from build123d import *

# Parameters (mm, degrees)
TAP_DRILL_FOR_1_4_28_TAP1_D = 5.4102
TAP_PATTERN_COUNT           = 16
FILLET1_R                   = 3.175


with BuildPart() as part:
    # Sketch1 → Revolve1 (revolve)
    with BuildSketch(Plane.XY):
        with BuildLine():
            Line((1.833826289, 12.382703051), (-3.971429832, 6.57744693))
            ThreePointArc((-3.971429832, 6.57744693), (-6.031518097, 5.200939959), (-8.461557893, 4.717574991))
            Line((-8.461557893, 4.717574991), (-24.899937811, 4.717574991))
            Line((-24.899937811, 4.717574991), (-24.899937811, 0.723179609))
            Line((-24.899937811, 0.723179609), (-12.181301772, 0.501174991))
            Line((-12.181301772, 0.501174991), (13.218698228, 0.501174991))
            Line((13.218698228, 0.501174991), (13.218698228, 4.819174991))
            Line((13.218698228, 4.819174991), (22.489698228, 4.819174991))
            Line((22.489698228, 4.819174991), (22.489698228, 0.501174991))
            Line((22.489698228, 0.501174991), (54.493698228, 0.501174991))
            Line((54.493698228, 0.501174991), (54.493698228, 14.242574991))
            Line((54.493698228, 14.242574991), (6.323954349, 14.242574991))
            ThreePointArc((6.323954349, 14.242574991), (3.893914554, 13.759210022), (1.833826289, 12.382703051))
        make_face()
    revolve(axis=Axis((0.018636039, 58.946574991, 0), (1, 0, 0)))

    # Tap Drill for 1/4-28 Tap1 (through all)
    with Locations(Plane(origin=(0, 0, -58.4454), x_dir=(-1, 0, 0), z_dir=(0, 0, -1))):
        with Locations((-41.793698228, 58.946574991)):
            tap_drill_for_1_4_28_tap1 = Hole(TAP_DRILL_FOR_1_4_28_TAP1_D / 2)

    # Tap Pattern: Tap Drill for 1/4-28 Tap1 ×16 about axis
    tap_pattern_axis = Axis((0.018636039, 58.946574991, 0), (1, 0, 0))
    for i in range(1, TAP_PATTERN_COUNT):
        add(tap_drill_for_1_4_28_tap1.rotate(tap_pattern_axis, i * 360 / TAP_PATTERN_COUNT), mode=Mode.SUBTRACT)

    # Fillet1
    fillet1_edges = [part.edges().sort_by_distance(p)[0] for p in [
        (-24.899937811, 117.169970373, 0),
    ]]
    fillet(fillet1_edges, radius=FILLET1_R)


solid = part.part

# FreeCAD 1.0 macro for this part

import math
import FreeCAD as App
import Part
import Sketcher

V = App.Vector
Q = App.Units.Quantity


def edges_at(feature, points):
    """Names of the edges that pass closest to the given points."""
    edges = feature.Shape.Edges
    near = lambda p: min(range(len(edges)), key=lambda i: edges[i].distToShape(Part.Vertex(*p))[0])
    return sorted({f"Edge{near(p) + 1}" for p in points})

doc = App.newDocument("Part")
body = doc.addObject("PartDesign::Body", "Body")

# Sketch on XY plane
sketch1 = doc.addObject("Sketcher::SketchObject", "Sketch")
body.addObject(sketch1)
sketch1.AttachmentSupport = (doc.XY_Plane, [""])
sketch1.MapMode = "FlatFace"
sketch1.addGeometry([
    Part.LineSegment(V(1.8, 12.4, 0), V(-4, 6.6, 0)),  # 0
    Part.ArcOfCircle(Part.Circle(V(-8.5, 11.1, 0), V(0, 0, 1), 6.3), math.radians(-90), math.radians(-45)),  # 1
    Part.LineSegment(V(-8.5, 4.7, 0), V(-24.9, 4.7, 0)),  # 2
    Part.LineSegment(V(-24.9, 4.7, 0), V(-24.9, 0.7, 0)),  # 3
    Part.LineSegment(V(-24.9, 0.7, 0), V(-12.2, 0.5, 0)),  # 4
    Part.LineSegment(V(-12.2, 0.5, 0), V(13.2, 0.5, 0)),  # 5
    Part.LineSegment(V(13.2, 0.5, 0), V(13.2, 4.8, 0)),  # 6
    Part.LineSegment(V(13.2, 4.8, 0), V(22.5, 4.8, 0)),  # 7
    Part.LineSegment(V(22.5, 4.8, 0), V(22.5, 0.5, 0)),  # 8
    Part.LineSegment(V(22.5, 0.5, 0), V(54.5, 0.5, 0)),  # 9
    Part.LineSegment(V(54.5, 0.5, 0), V(54.5, 14.2, 0)),  # 10
    Part.LineSegment(V(54.5, 14.2, 0), V(6.3, 14.2, 0)),  # 11
    Part.ArcOfCircle(Part.Circle(V(6.3, 7.9, 0), V(0, 0, 1), 6.4), math.radians(90), math.radians(135)),  # 12
], False)
sketch1.addGeometry(Part.LineSegment(V(-24.9, 58.9, 0), V(54.5, 58.9, 0)), True)  # axis
sketch1.addConstraint([
    Sketcher.Constraint("Tangent", 0, 2, 1, 2),
    Sketcher.Constraint("Tangent", 1, 1, 2, 1),
    Sketcher.Constraint("Coincident", 2, 2, 3, 1),
    Sketcher.Constraint("Coincident", 3, 2, 4, 1),
    Sketcher.Constraint("Coincident", 4, 2, 5, 1),
    Sketcher.Constraint("Coincident", 5, 2, 6, 1),
    Sketcher.Constraint("Coincident", 6, 2, 7, 1),
    Sketcher.Constraint("Coincident", 7, 2, 8, 1),
    Sketcher.Constraint("Coincident", 8, 2, 9, 1),
    Sketcher.Constraint("Coincident", 9, 2, 10, 1),
    Sketcher.Constraint("Coincident", 10, 2, 11, 1),
    Sketcher.Constraint("Tangent", 11, 2, 12, 1),
    Sketcher.Constraint("Tangent", 12, 2, 0, 1),
    Sketcher.Constraint("Horizontal", 2),
    Sketcher.Constraint("Vertical", 3),
    Sketcher.Constraint("Horizontal", 5),
    Sketcher.Constraint("Vertical", 6),
    Sketcher.Constraint("Horizontal", 7),
    Sketcher.Constraint("Vertical", 8),
    Sketcher.Constraint("Horizontal", 9),
    Sketcher.Constraint("Vertical", 10),
    Sketcher.Constraint("Horizontal", 11),
    Sketcher.Constraint("Horizontal", 13),
    Sketcher.Constraint("Equal", 1, 12),
    Sketcher.Constraint("Horizontal", 5, 2, 8, 2),
    Sketcher.Constraint("Vertical", 3, 2, 13, 1),
    Sketcher.Constraint("Vertical", 10, 2, 13, 2),
    Sketcher.Constraint("DistanceX", 5, 1, 5, 2, Q("1 in")),
    Sketcher.Constraint("Radius", 1, Q("0.25 in")),
    Sketcher.Constraint("Angle", 0, Q("-135 deg")),
    Sketcher.Constraint("Angle", 4, Q("-1 deg")),
    Sketcher.Constraint("DistanceX", 9, 1, 9, 2, Q("1.26 in")),
    Sketcher.Constraint("DistanceY", 6, 1, 6, 2, Q("0.17 in")),
    Sketcher.Constraint("DistanceX", 7, 1, 7, 2, Q("0.365 in")),
    Sketcher.Constraint("DistanceY", 10, 1, 10, 2, Q("0.541 in")),
    Sketcher.Constraint("DistanceY", 11, 2, 13, 1, Q("1.76 in")),
    Sketcher.Constraint("DistanceY", 12, 3, 1, 3, Q("0.125 in")),
    Sketcher.Constraint("DistanceX", 2, 2, 2, 1, Q("16.43838 mm")),
    Sketcher.Constraint("DistanceX", 4, 2, -1, 1, Q("12.181302 mm")),
    Sketcher.Constraint("DistanceX", 11, 2, 11, 1, Q("48.169744 mm")),
    Sketcher.Constraint("DistanceY", -1, 1, 3, 2, Q("0.72318 mm")),
])
revolution = doc.addObject("PartDesign::Revolution", "Revolution")
body.addObject(revolution)
revolution.Profile = sketch1
revolution.ReferenceAxis = (sketch1, ["Axis0"])
revolution.Angle = 360

# Sketch on XY plane
sketch2 = doc.addObject("Sketcher::SketchObject", "Sketch001")
body.addObject(sketch2)
sketch2.AttachmentSupport = (doc.XY_Plane, [""])
sketch2.MapMode = "FlatFace"
sketch2.AttachmentOffset = App.Placement(V(0, 0, -2.301 * 25.4), App.Rotation())
sketch2.addGeometry(Part.Circle(V(41.8, 58.9, 0), V(0, 0, 1), 2.7), False)
sketch2.addConstraint([
    Sketcher.Constraint("Diameter", 0, Q("0.213 in")),
    Sketcher.Constraint("DistanceX", -1, 1, 0, 3, Q("41.793698 mm")),
    Sketcher.Constraint("DistanceY", -1, 1, 0, 3, Q("58.946575 mm")),
])
doc.recompute()
hole = doc.addObject("PartDesign::Hole", "Hole")
body.addObject(hole)
hole.Profile = sketch2
hole.ThreadType = "None"
hole.Diameter = Q("0.213 in")
hole.DepthType = "ThroughAll"
hole.Reversed = True
doc.recompute()

datumline = doc.addObject("PartDesign::Line", "DatumLine")
body.addObject(datumline)
datumline.Placement = App.Placement(V(0, 58.946575, 0), App.Rotation(V(0, 0, 1), V(1, 0, 0)))
polarpattern = doc.addObject("PartDesign::PolarPattern", "PolarPattern")
body.addObject(polarpattern)
polarpattern.Originals = [hole]
polarpattern.Axis = (datumline, [""])
polarpattern.Angle = 360
polarpattern.Occurrences = 16
body.Tip = polarpattern
doc.recompute()

fillet = doc.addObject("PartDesign::Fillet", "Fillet")
body.addObject(fillet)
fillet.Base = (polarpattern, edges_at(polarpattern, [(-24.9, 117.17, 0)]))
fillet.Radius = Q("0.125 in")

doc.recompute()
